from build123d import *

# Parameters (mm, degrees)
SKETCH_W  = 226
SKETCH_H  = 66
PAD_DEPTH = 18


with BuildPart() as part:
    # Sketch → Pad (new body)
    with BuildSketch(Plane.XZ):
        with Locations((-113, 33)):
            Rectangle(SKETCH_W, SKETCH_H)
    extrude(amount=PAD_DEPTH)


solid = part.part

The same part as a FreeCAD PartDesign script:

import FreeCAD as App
import Part
import Sketcher

V = App.Vector
Q = App.Units.Quantity

doc = App.newDocument("Part")
body = doc.addObject("PartDesign::Body", "Body")

sketch1 = body.newObject("Sketcher::SketchObject", "Sketch")
sketch1.AttachmentSupport = (doc.getObject("XZ_Plane"), [""])
sketch1.MapMode = "FlatFace"
sketch1.addGeometry([
    Part.LineSegment(V(-226, 66, 0), V(-226, 0, 0)),
    Part.LineSegment(V(-226, 0, 0), V(0, 0, 0)),
    Part.LineSegment(V(0, 0, 0), V(0, 66, 0)),
    Part.LineSegment(V(0, 66, 0), V(-226, 66, 0)),
], False)
sketch1.addConstraint([
    Sketcher.Constraint("Coincident", 0, 2, 1, 1),
    Sketcher.Constraint("Coincident", 1, 2, 2, 1),
    Sketcher.Constraint("Coincident", 2, 2, 3, 1),
    Sketcher.Constraint("Coincident", 3, 2, 0, 1),
    Sketcher.Constraint("Vertical", 0),
    Sketcher.Constraint("Horizontal", 1),
    Sketcher.Constraint("Vertical", 2),
    Sketcher.Constraint("Horizontal", 3),
    Sketcher.Constraint("Coincident", 1, 2, -1, 1),
    Sketcher.Constraint("DistanceX", 1, 1, 1, 2, Q("226 mm")),
    Sketcher.Constraint("DistanceY", 0, 2, 0, 1, Q("66 mm")),
])
pad1 = body.newObject("PartDesign::Pad", "Pad")
pad1.Profile = sketch1
pad1.Length = 18

doc.recompute()
